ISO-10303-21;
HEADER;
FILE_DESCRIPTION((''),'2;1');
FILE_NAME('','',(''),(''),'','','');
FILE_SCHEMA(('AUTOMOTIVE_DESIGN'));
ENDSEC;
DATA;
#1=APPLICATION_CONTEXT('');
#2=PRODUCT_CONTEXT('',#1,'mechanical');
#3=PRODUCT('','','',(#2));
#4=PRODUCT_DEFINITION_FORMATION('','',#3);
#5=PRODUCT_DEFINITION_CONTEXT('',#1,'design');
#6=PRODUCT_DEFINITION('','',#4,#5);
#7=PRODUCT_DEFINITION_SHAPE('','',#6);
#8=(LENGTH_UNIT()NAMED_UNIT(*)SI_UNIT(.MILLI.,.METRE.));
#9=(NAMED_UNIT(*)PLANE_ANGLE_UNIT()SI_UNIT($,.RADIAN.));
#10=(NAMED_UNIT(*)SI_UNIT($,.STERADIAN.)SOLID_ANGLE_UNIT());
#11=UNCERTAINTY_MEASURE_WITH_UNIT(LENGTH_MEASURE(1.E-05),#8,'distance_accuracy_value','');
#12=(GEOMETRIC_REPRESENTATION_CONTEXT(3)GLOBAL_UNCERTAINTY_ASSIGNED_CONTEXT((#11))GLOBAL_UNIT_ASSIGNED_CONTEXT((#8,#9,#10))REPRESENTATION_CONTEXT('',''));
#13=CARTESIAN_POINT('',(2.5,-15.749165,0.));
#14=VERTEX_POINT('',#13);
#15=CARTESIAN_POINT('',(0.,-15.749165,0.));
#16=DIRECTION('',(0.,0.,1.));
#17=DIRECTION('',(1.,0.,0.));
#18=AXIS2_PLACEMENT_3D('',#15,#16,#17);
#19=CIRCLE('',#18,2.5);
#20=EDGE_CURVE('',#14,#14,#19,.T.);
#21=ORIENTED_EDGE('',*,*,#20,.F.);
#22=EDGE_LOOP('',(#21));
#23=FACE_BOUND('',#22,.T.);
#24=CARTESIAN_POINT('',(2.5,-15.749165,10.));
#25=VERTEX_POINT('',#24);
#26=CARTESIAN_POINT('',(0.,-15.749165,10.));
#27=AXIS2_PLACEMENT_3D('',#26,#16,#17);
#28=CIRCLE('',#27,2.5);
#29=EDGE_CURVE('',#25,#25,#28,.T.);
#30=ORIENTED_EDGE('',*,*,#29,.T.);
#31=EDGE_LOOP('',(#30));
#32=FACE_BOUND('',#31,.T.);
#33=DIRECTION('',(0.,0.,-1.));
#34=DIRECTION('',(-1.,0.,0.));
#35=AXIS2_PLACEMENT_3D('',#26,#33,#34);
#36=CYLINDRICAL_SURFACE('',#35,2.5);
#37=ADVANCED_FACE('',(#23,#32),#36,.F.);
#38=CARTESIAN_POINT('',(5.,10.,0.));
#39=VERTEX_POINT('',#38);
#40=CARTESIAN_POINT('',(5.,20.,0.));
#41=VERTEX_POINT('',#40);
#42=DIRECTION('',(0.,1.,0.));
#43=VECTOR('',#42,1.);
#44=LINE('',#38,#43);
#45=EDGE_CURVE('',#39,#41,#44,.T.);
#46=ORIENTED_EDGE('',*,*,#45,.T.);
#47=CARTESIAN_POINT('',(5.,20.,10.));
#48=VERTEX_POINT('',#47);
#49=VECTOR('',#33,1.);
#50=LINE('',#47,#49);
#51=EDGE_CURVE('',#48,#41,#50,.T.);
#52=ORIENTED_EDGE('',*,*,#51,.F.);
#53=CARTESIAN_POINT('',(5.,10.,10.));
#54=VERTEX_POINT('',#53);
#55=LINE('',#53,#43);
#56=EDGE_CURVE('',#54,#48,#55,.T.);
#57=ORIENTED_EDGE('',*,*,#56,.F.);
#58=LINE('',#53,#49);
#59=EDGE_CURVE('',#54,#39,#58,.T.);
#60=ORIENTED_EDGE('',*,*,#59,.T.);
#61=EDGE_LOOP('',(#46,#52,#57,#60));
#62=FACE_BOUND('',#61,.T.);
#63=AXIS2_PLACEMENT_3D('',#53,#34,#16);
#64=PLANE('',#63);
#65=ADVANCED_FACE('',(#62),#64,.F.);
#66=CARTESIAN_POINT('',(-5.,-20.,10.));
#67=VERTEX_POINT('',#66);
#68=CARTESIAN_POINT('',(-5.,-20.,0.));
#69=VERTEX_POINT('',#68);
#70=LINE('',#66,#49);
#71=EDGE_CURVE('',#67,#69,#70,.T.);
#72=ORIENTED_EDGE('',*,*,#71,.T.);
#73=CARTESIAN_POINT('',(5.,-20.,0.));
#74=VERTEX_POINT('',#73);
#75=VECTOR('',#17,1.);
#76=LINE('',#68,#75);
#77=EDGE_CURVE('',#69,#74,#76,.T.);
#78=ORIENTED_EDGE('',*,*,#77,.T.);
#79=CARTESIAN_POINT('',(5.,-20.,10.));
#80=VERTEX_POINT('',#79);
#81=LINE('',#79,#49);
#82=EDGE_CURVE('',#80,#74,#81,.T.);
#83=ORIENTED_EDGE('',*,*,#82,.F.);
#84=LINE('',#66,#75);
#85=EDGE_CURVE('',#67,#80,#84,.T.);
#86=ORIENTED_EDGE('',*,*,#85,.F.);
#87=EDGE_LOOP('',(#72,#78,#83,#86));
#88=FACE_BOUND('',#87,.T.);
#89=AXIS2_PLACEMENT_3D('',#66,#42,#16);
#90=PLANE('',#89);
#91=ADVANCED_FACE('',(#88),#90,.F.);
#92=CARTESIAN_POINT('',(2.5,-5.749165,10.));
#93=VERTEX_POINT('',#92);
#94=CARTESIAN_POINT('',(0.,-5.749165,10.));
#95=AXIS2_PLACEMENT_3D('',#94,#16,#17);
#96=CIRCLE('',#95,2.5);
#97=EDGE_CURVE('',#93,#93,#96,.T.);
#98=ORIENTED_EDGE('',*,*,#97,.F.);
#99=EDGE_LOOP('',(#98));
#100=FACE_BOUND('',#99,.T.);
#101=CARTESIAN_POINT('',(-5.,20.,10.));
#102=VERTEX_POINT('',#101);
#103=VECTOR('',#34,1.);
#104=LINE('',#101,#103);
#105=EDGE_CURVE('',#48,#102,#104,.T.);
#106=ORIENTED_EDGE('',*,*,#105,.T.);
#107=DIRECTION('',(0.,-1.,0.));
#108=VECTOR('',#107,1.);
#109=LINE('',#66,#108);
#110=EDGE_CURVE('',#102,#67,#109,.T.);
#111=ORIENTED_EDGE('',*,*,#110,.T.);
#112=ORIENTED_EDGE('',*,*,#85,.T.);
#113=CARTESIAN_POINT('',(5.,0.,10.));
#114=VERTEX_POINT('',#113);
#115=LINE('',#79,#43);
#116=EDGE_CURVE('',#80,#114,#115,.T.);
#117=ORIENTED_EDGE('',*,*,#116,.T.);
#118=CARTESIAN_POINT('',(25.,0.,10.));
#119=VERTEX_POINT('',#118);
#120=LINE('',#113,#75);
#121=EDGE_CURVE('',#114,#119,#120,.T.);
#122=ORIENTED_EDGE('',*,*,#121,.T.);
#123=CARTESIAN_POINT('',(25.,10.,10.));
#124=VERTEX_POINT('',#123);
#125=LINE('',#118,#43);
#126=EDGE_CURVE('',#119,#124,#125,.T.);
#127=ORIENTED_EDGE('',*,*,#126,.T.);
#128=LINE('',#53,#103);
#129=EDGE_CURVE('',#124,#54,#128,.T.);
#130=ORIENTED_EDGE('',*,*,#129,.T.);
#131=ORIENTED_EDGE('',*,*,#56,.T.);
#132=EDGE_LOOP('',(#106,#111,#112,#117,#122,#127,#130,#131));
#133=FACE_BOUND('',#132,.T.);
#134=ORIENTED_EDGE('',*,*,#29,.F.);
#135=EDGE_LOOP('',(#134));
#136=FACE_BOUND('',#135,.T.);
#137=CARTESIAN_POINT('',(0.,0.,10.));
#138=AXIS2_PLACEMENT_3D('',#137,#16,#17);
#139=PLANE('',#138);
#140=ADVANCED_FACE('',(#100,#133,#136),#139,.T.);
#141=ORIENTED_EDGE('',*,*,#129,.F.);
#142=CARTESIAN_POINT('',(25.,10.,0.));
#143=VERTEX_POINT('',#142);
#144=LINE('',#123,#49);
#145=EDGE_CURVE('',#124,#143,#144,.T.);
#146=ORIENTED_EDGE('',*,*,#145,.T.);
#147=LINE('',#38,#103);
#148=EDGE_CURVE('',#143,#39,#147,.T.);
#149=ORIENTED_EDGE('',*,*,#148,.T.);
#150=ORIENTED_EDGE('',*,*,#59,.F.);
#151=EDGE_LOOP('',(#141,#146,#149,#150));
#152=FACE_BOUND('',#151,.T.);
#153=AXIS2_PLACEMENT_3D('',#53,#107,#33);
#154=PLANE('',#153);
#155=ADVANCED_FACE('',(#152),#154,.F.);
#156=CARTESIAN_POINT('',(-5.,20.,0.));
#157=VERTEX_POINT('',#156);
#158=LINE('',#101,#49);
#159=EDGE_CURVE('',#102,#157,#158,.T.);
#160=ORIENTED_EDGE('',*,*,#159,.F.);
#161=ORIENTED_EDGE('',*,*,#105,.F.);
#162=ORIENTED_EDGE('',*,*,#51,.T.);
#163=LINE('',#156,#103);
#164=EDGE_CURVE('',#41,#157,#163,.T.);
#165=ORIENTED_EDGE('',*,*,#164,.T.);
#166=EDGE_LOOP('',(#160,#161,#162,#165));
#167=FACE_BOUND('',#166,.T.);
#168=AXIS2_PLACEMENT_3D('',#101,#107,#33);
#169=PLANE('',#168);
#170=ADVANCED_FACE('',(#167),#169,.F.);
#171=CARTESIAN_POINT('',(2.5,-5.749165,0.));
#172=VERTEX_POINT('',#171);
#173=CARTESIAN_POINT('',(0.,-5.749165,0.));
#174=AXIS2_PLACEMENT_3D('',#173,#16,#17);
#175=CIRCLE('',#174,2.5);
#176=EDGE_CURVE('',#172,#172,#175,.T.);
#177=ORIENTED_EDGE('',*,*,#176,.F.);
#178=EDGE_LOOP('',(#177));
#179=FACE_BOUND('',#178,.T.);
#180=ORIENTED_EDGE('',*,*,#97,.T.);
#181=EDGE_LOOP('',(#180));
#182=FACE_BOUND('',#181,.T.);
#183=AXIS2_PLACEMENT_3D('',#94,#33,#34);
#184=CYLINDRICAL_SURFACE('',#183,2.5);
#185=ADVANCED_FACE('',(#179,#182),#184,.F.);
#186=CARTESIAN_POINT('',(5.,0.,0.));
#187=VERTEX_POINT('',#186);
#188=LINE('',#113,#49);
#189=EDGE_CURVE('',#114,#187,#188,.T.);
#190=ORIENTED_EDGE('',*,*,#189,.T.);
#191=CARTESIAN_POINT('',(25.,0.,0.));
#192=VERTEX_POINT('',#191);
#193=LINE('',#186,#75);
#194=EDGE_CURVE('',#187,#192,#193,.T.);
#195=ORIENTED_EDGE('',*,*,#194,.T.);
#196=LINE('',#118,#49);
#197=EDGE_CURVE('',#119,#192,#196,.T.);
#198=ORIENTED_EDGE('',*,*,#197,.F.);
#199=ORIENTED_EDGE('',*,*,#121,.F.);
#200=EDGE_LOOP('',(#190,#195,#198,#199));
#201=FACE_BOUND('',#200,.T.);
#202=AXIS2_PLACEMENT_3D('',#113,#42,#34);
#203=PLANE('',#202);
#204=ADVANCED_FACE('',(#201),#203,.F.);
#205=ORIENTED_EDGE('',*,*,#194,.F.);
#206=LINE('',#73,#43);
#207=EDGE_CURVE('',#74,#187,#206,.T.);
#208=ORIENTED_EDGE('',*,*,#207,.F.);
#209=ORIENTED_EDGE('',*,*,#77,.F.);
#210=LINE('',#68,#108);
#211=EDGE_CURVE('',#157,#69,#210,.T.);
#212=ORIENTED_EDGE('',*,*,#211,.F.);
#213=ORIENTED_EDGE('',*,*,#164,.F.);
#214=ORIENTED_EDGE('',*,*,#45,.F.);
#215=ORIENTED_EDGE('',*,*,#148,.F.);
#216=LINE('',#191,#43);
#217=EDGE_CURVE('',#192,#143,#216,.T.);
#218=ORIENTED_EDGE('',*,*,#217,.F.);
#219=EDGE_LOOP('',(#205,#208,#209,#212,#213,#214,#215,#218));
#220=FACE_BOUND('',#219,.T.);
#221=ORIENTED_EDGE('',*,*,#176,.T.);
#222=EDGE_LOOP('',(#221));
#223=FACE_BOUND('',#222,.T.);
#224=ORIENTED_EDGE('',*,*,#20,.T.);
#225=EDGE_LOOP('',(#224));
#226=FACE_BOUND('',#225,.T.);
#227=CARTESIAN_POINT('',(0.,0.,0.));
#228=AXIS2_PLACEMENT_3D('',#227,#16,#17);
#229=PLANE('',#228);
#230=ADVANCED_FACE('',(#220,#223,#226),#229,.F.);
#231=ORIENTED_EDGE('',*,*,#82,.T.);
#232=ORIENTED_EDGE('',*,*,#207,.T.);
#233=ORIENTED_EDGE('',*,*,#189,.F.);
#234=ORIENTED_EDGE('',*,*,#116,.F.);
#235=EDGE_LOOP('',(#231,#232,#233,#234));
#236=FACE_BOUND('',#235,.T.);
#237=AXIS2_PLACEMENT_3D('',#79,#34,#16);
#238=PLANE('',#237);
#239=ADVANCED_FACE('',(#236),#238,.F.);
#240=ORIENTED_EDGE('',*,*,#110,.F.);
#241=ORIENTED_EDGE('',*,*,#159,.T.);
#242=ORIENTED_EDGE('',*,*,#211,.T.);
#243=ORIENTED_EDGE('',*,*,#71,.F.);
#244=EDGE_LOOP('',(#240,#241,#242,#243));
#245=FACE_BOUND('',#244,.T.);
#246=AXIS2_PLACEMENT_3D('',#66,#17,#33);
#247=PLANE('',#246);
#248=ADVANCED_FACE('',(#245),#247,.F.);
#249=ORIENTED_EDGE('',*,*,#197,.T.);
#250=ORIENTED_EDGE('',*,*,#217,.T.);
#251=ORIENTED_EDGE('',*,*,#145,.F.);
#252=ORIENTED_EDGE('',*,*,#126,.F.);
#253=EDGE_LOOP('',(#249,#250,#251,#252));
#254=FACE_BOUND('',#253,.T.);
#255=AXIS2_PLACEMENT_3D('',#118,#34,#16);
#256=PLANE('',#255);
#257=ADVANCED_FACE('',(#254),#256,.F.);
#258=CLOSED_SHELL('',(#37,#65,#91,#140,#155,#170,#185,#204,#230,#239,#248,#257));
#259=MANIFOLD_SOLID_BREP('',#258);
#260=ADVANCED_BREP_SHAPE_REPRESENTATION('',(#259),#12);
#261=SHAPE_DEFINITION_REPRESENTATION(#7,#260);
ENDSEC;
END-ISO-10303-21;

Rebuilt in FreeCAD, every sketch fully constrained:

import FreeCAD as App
import Part
import Sketcher

V = App.Vector
Q = App.Units.Quantity

doc = App.newDocument("Part")
body = doc.addObject("PartDesign::Body", "Body")

sketch1 = body.newObject("Sketcher::SketchObject", "Sketch")
sketch1.AttachmentSupport = (doc.getObject("XY_Plane"), [""])
sketch1.MapMode = "FlatFace"
sketch1.addGeometry([
    Part.LineSegment(V(5, 10, 0), V(5, 20, 0)),
    Part.LineSegment(V(5, 20, 0), V(-5, 20, 0)),
    Part.LineSegment(V(-5, 20, 0), V(-5, -20, 0)),
    Part.LineSegment(V(-5, -20, 0), V(5, -20, 0)),
    Part.LineSegment(V(5, -20, 0), V(5, 0, 0)),
    Part.LineSegment(V(5, 0, 0), V(25, 0, 0)),
    Part.LineSegment(V(25, 0, 0), V(25, 10, 0)),
    Part.LineSegment(V(25, 10, 0), V(5, 10, 0)),
    Part.Circle(V(0, -15.749165, 0), V(0, 0, 1), 2.5),
    Part.Circle(V(0, -5.749165, 0), V(0, 0, 1), 2.5),
], False)
sketch1.addConstraint([
    Sketcher.Constraint("Coincident", 0, 2, 1, 1),
    Sketcher.Constraint("Coincident", 1, 2, 2, 1),
    Sketcher.Constraint("Coincident", 2, 2, 3, 1),
    Sketcher.Constraint("Coincident", 3, 2, 4, 1),
    Sketcher.Constraint("Coincident", 4, 2, 5, 1),
    Sketcher.Constraint("Coincident", 5, 2, 6, 1),
    Sketcher.Constraint("Coincident", 6, 2, 7, 1),
    Sketcher.Constraint("Coincident", 7, 2, 0, 1),
    Sketcher.Constraint("Vertical", 0),
    Sketcher.Constraint("Horizontal", 1),
    Sketcher.Constraint("Vertical", 2),
    Sketcher.Constraint("Horizontal", 3),
    Sketcher.Constraint("Vertical", 4),
    Sketcher.Constraint("Horizontal", 5),
    Sketcher.Constraint("Vertical", 6),
    Sketcher.Constraint("Horizontal", 7),
    Sketcher.Constraint("Equal", 8, 9),
    Sketcher.Constraint("Symmetric", 0, 2, 2, 2, -1, 1),
    Sketcher.Constraint("PointOnObject", 8, 3, -2),
    Sketcher.Constraint("PointOnObject", 9, 3, -2),
    Sketcher.Constraint("PointOnObject", 4, 2, -1),
    Sketcher.Constraint("Vertical", 0, 2, 3, 2),
    Sketcher.Constraint("Equal", 3, 0),
    Sketcher.Constraint("Equal", 7, 4),
    Sketcher.Constraint("Equal", 0, 6),
    Sketcher.Constraint("Diameter", 8, Q("5 mm")),
    Sketcher.Constraint("DistanceX", 1, 2, 1, 1, Q("10 mm")),
    Sketcher.Constraint("DistanceY", 8, 3, 9, 3, Q("10 mm")),
    Sketcher.Constraint("DistanceY", 8, 3, -1, 1, Q("15.749165 mm")),
])
pad1 = body.newObject("PartDesign::Pad", "Pad")
pad1.Profile = sketch1
pad1.Length = 10

doc.recompute()
